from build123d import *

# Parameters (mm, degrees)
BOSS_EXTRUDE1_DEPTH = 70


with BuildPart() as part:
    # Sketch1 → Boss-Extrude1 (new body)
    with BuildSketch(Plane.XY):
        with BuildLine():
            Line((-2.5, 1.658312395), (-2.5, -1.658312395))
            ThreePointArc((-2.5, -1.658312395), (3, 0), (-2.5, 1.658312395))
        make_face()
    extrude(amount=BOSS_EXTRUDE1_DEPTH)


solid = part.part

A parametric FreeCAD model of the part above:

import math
import FreeCAD as App
import Part
import Sketcher
from FreeCAD import Vector
Q = App.Units.Quantity

doc = App.newDocument("Part")
body = doc.addObject("PartDesign::Body", "Body")

sketch1 = body.newObject("Sketcher::SketchObject", "Sketch")
sketch1.AttachmentSupport = (doc.getObject("XY_Plane"), [""])
sketch1.MapMode = "FlatFace"
sketch1.addGeometry([
    Part.LineSegment(Vector(-2.5, 1.658312, 0), Vector(-2.5, -1.658312, 0)),
    Part.ArcOfCircle(Part.Circle(Vector(0, 0, 0), Vector(0, 0, 1), 3), math.radians(-146.44269), math.radians(146.44269)),
], False)
sketch1.addConstraint([
    Sketcher.Constraint("Coincident", 0, 1, 1, 2),
    Sketcher.Constraint("Coincident", 1, 1, 0, 2),
    Sketcher.Constraint("Vertical", 0),
    Sketcher.Constraint("Coincident", 1, 3, -1, 1),
    Sketcher.Constraint("Radius", 1, Q("3 mm")),
    Sketcher.Constraint("DistanceX", 0, 1, -1, 1, Q("2.5 mm")),
])
pad1 = body.newObject("PartDesign::Pad", "Pad")
pad1.Profile = sketch1
pad1.Length = 70

doc.recompute()
